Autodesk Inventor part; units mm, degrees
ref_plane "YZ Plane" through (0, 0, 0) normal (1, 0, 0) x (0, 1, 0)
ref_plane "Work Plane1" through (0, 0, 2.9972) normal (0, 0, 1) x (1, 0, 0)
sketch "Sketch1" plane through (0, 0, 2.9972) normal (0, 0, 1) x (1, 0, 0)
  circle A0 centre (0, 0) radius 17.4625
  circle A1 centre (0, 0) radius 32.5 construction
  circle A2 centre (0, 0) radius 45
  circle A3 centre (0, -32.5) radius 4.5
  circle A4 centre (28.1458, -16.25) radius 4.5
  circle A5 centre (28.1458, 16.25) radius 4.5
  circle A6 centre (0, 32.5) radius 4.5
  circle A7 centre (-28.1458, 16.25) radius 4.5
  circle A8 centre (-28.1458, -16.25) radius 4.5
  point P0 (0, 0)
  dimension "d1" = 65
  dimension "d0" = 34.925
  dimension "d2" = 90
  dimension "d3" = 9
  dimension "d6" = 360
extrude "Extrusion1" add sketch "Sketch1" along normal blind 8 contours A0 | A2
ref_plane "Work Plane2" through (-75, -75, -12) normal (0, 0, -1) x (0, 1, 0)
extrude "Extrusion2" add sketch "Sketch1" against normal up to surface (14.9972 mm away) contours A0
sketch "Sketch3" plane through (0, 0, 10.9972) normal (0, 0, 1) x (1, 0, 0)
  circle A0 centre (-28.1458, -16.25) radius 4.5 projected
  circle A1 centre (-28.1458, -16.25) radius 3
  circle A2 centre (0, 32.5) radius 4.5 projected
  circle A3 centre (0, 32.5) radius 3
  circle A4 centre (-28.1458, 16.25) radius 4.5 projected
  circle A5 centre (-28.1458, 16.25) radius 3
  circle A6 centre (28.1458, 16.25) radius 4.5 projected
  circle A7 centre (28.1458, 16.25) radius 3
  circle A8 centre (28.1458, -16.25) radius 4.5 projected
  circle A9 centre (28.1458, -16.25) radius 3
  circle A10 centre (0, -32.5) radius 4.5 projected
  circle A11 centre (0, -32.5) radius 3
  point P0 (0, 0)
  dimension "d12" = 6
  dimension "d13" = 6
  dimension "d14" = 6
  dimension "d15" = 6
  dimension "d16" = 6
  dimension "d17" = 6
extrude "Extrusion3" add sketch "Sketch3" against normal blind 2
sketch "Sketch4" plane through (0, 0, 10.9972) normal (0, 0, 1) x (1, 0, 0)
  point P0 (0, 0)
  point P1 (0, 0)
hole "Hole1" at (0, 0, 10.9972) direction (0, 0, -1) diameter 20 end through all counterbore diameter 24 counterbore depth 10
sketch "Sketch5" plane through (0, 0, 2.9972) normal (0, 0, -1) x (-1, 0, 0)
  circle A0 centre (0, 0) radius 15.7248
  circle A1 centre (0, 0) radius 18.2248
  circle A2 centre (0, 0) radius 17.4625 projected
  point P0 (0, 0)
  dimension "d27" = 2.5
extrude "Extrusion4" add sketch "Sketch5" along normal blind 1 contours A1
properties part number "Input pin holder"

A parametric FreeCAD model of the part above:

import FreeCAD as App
import Part
import Sketcher
Q = App.Units.Quantity

doc = App.newDocument("Part")
body = doc.addObject("PartDesign::Body", "Body")

# Sketch on XY plane
sketch1 = body.newObject("Sketcher::SketchObject", "Sketch")
sketch1.AttachmentSupport = (doc.getObject("XY_Plane"), [""])
sketch1.MapMode = "FlatFace"
sketch1.AttachmentOffset = App.Placement(App.Vector(0, 0, 2.9972), App.Rotation())
sketch1.addGeometry([
    Part.Circle(App.Vector(0, 0, 0), App.Vector(0, 0, 1), 45),  # 0
    Part.Circle(App.Vector(-28.1458, -16.25, 0), App.Vector(0, 0, 1), 4.5),  # 1
    Part.Circle(App.Vector(0, -32.5, 0), App.Vector(0, 0, 1), 4.5),  # 2
    Part.Circle(App.Vector(28.1458, -16.25, 0), App.Vector(0, 0, 1), 4.5),  # 3
    Part.Circle(App.Vector(-28.1458, 16.25, 0), App.Vector(0, 0, 1), 4.5),  # 4
    Part.Circle(App.Vector(0, 32.5, 0), App.Vector(0, 0, 1), 4.5),  # 5
    Part.Circle(App.Vector(28.1458, 16.25, 0), App.Vector(0, 0, 1), 4.5),  # 6
], False)
sketch1.addConstraint([
    Sketcher.Constraint("Coincident", 0, 3, -1, 1),
    Sketcher.Constraint("Equal", 1, 2),
    Sketcher.Constraint("Equal", 2, 3),
    Sketcher.Constraint("Equal", 3, 4),
    Sketcher.Constraint("Equal", 4, 5),
    Sketcher.Constraint("Equal", 5, 6),
    Sketcher.Constraint("Symmetric", 3, 3, 4, 3, -1, 1),
    Sketcher.Constraint("Symmetric", 2, 3, 5, 3, -1, 1),
    Sketcher.Constraint("Symmetric", 1, 3, 6, 3, -1, 1),
    Sketcher.Constraint("Symmetric", 1, 3, 3, 3, -2),
    Sketcher.Constraint("PointOnObject", 2, 3, -2),
    Sketcher.Constraint("Diameter", 0, Q("90 mm")),
    Sketcher.Constraint("Diameter", 1, Q("9 mm")),
    Sketcher.Constraint("DistanceY", 2, 3, 5, 3, Q("65 mm")),
    Sketcher.Constraint("DistanceY", 1, 3, 4, 3, Q("32.5 mm")),
    Sketcher.Constraint("DistanceX", 1, 3, -1, 1, Q("28.1458 mm")),
])
pad1 = body.newObject("PartDesign::Pad", "Pad")
pad1.Profile = sketch1
pad1.Length = 8

# Sketch on XY plane
sketch2 = body.newObject("Sketcher::SketchObject", "Sketch001")
sketch2.AttachmentSupport = (doc.getObject("XY_Plane"), [""])
sketch2.MapMode = "FlatFace"
sketch2.AttachmentOffset = App.Placement(App.Vector(0, 0, 2.9972), App.Rotation())
sketch2.addGeometry(Part.Circle(App.Vector(0, 0, 0), App.Vector(0, 0, 1), 17.4625), False)
sketch2.addConstraint([
    Sketcher.Constraint("Coincident", 0, 3, -1, 1),
    Sketcher.Constraint("Diameter", 0, Q("34.925 mm")),
])
pad2 = body.newObject("PartDesign::Pad", "Pad001")
pad2.Profile = sketch2
pad2.Length = 14.9972
pad2.Reversed = True

# Sketch on XY plane
sketch3 = body.newObject("Sketcher::SketchObject", "Sketch002")
sketch3.AttachmentSupport = (doc.getObject("XY_Plane"), [""])
sketch3.MapMode = "FlatFace"
sketch3.AttachmentOffset = App.Placement(App.Vector(0, 0, 10.9972), App.Rotation())
sketch3.addGeometry([
    Part.Circle(App.Vector(-28.1458, -16.25, 0), App.Vector(0, 0, 1), 4.5),  # 0
    Part.Circle(App.Vector(-28.1458, -16.25, 0), App.Vector(0, 0, 1), 3),  # 1
    Part.Circle(App.Vector(0, 32.5, 0), App.Vector(0, 0, 1), 4.5),  # 2
    Part.Circle(App.Vector(0, 32.5, 0), App.Vector(0, 0, 1), 3),  # 3
    Part.Circle(App.Vector(-28.1458, 16.25, 0), App.Vector(0, 0, 1), 4.5),  # 4
    Part.Circle(App.Vector(-28.1458, 16.25, 0), App.Vector(0, 0, 1), 3),  # 5
    Part.Circle(App.Vector(28.1458, 16.25, 0), App.Vector(0, 0, 1), 4.5),  # 6
    Part.Circle(App.Vector(28.1458, 16.25, 0), App.Vector(0, 0, 1), 3),  # 7
    Part.Circle(App.Vector(28.1458, -16.25, 0), App.Vector(0, 0, 1), 4.5),  # 8
    Part.Circle(App.Vector(28.1458, -16.25, 0), App.Vector(0, 0, 1), 3),  # 9
    Part.Circle(App.Vector(0, -32.5, 0), App.Vector(0, 0, 1), 4.5),  # 10
    Part.Circle(App.Vector(0, -32.5, 0), App.Vector(0, 0, 1), 3),  # 11
], False)
sketch3.addConstraint([
    Sketcher.Constraint("Coincident", 1, 3, 0, 3),
    Sketcher.Constraint("Coincident", 3, 3, 2, 3),
    Sketcher.Constraint("Coincident", 5, 3, 4, 3),
    Sketcher.Constraint("Coincident", 7, 3, 6, 3),
    Sketcher.Constraint("Coincident", 9, 3, 8, 3),
    Sketcher.Constraint("Coincident", 11, 3, 10, 3),
    Sketcher.Constraint("Equal", 0, 2),
    Sketcher.Constraint("Equal", 1, 3),
    Sketcher.Constraint("Equal", 2, 4),
    Sketcher.Constraint("Equal", 3, 5),
    Sketcher.Constraint("Equal", 4, 6),
    Sketcher.Constraint("Equal", 5, 7),
    Sketcher.Constraint("Equal", 6, 8),
    Sketcher.Constraint("Equal", 7, 9),
    Sketcher.Constraint("Equal", 8, 10),
    Sketcher.Constraint("Equal", 9, 11),
    Sketcher.Constraint("Symmetric", 0, 3, 6, 3, -1, 1),
    Sketcher.Constraint("Symmetric", 4, 3, 8, 3, -1, 1),
    Sketcher.Constraint("Symmetric", 2, 3, 10, 3, -1, 1),
    Sketcher.Constraint("Symmetric", 4, 3, 6, 3, -2),
    Sketcher.Constraint("PointOnObject", 2, 3, -2),
    Sketcher.Constraint("Diameter", 1, Q("6 mm")),
    Sketcher.Constraint("Diameter", 0, Q("9 mm")),
    Sketcher.Constraint("DistanceY", -1, 1, 2, 3, Q("32.5 mm")),
    Sketcher.Constraint("DistanceY", 0, 3, 4, 3, Q("32.5 mm")),
    Sketcher.Constraint("DistanceX", 0, 3, -1, 1, Q("28.1458 mm")),
])
pad3 = body.newObject("PartDesign::Pad", "Pad002")
pad3.Profile = sketch3
pad3.Length = 2
pad3.Reversed = True

# Sketch on XY plane
sketch4 = body.newObject("Sketcher::SketchObject", "Sketch003")
sketch4.AttachmentSupport = (doc.getObject("XY_Plane"), [""])
sketch4.MapMode = "FlatFace"
sketch4.AttachmentOffset = App.Placement(App.Vector(0, 0, 10.9972), App.Rotation())
sketch4.addGeometry(Part.Circle(App.Vector(0, 0, 0), App.Vector(0, 0, 1), 10), False)
sketch4.addConstraint([
    Sketcher.Constraint("Coincident", 0, 3, -1, 1),
    Sketcher.Constraint("Diameter", 0, Q("20 mm")),
])
doc.recompute()
hole = body.newObject("PartDesign::Hole", "Hole")
hole.Profile = sketch4
hole.ThreadType = "None"
hole.Diameter = 20
hole.DepthType = "ThroughAll"
hole.HoleCutType = "Counterbore"
hole.HoleCutDiameter = 24
hole.HoleCutDepth = 10

# Sketch on XY plane
sketch5 = body.newObject("Sketcher::SketchObject", "Sketch004")
sketch5.AttachmentSupport = (doc.getObject("XY_Plane"), [""])
sketch5.MapMode = "FlatFace"
sketch5.AttachmentOffset = App.Placement(App.Vector(0, 0, 2.9972), App.Rotation())
sketch5.addGeometry([
    Part.Circle(App.Vector(0, 0, 0), App.Vector(0, 0, 1), 18.2248),
    Part.Circle(App.Vector(0, 0, 0), App.Vector(0, 0, 1), 17.4625),
], False)
sketch5.addConstraint([
    Sketcher.Constraint("Coincident", 0, 3, -1, 1),
    Sketcher.Constraint("Coincident", 1, 3, -1, 1),
    Sketcher.Constraint("Diameter", 1, Q("34.925 mm")),
    Sketcher.Constraint("Diameter", 0, Q("36.4496 mm")),
])
pad4 = body.newObject("PartDesign::Pad", "Pad003")
pad4.Profile = sketch5
pad4.Length = 1
pad4.Reversed = True

doc.recompute()
